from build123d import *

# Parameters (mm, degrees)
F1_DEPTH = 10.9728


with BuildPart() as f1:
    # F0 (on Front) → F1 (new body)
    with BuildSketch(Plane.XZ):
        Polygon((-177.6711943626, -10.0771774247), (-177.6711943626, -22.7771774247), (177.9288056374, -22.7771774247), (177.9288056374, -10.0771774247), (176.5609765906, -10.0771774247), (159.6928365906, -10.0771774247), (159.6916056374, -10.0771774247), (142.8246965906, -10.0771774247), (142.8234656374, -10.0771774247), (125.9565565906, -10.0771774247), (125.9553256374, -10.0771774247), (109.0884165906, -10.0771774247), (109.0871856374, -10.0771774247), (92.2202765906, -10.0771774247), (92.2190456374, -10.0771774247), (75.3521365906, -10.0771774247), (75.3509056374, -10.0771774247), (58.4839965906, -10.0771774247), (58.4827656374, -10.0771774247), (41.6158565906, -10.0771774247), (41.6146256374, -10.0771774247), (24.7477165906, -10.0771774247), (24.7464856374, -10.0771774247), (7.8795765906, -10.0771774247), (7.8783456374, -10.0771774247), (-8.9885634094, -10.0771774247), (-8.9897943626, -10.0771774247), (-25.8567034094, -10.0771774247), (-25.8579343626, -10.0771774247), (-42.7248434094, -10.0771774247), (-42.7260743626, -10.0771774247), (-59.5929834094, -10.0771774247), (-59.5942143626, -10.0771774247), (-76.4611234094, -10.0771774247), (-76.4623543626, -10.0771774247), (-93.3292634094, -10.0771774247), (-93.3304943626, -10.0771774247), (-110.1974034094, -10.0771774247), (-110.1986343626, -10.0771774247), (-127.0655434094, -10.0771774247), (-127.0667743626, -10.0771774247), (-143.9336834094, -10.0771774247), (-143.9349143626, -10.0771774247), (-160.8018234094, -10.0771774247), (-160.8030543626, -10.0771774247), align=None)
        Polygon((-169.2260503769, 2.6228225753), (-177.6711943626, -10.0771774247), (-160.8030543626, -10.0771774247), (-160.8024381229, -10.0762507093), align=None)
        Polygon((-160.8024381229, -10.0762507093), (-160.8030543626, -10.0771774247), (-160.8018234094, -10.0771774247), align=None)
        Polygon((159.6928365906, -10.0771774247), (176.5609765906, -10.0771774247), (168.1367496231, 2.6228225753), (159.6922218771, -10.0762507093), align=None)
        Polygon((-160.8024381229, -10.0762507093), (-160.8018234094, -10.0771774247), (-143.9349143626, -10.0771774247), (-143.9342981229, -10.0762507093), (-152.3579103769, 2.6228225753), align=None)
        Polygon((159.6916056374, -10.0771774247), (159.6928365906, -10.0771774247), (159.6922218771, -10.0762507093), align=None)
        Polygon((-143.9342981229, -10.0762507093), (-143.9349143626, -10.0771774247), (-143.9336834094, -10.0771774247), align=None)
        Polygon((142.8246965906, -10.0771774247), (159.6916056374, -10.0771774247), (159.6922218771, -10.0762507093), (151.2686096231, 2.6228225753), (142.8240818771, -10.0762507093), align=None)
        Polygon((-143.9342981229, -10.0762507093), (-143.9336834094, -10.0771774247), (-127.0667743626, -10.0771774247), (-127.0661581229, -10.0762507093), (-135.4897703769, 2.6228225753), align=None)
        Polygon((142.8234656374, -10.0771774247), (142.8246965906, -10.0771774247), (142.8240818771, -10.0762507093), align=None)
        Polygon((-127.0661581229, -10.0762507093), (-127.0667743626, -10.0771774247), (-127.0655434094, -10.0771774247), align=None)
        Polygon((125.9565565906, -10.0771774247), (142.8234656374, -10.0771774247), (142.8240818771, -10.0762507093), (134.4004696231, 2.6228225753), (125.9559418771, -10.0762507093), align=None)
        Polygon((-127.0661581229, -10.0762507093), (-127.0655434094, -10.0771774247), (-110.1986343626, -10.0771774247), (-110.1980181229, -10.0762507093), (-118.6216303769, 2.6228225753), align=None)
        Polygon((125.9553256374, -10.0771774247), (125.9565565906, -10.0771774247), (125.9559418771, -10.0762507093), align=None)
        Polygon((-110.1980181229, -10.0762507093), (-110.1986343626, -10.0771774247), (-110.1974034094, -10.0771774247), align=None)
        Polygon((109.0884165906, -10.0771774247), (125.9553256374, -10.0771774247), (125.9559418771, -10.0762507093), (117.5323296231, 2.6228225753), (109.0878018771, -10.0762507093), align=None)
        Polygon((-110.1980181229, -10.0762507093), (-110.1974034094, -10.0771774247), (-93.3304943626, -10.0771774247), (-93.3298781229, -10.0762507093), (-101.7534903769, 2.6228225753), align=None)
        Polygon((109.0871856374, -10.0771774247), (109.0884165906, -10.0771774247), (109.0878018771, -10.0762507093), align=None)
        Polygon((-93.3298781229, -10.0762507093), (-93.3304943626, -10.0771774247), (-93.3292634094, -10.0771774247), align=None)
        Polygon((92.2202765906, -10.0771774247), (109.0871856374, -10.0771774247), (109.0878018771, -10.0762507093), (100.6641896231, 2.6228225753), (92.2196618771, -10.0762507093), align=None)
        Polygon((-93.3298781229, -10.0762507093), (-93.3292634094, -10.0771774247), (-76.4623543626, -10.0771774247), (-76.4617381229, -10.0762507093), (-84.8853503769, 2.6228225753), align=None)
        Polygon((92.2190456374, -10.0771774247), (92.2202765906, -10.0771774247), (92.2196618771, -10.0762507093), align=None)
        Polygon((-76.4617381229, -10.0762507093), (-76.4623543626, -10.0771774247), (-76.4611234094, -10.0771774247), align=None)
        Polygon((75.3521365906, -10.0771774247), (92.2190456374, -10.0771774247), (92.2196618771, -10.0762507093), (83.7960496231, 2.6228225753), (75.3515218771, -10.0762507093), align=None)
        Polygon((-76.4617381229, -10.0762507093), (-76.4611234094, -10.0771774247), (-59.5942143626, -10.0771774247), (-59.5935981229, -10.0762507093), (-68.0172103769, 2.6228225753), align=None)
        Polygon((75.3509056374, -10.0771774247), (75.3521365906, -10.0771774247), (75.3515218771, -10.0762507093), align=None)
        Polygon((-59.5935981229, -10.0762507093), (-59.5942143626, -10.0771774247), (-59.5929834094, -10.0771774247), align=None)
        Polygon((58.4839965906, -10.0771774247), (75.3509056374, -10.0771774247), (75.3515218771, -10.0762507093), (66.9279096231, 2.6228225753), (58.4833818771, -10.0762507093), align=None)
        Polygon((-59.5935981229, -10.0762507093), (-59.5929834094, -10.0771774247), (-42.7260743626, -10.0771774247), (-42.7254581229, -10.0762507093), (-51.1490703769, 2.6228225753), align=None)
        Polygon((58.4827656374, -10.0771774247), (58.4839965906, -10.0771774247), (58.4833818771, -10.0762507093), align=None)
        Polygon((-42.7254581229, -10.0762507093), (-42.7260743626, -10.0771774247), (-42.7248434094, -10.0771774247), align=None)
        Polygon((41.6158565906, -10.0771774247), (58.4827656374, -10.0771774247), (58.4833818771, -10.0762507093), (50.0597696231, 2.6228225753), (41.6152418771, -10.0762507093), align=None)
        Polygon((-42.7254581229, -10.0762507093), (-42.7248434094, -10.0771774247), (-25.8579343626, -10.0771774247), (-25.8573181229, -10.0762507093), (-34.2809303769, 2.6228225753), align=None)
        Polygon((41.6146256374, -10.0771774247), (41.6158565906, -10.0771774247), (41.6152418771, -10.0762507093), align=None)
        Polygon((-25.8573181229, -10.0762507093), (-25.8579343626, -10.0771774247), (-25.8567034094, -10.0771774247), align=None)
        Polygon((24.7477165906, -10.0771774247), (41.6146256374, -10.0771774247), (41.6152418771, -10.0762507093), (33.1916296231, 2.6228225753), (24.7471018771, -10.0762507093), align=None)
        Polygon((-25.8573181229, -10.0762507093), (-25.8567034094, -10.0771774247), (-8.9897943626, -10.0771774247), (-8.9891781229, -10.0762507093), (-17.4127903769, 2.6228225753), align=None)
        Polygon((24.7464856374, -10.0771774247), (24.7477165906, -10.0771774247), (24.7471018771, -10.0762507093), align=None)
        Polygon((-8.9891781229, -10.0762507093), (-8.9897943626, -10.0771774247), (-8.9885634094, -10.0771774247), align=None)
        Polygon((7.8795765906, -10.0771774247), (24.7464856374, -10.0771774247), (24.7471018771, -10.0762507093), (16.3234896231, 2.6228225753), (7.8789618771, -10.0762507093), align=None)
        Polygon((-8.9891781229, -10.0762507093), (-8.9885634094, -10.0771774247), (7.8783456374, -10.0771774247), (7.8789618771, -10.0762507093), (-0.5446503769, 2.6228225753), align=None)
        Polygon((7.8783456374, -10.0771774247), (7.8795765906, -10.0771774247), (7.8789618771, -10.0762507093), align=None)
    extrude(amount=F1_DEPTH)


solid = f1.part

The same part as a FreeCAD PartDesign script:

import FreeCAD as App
import Part
import Sketcher

V = App.Vector
Q = App.Units.Quantity

doc = App.newDocument("Part")
body = doc.addObject("PartDesign::Body", "Body")

# Sketch on XZ plane
sketch1 = doc.addObject("Sketcher::SketchObject", "Sketch")
body.addObject(sketch1)
sketch1.AttachmentSupport = (doc.XZ_Plane, [""])
sketch1.MapMode = "FlatFace"
sketch1.addGeometry(Part.LineSegment(V(16.3, 2.6, 0), V(7.9, -10.1, 0)), False)
sketch1.addGeometry(Part.LineSegment(V(7.9, -10.1, 0), V(-0.5, 2.6, 0)), False)
sketch1.addGeometry(Part.LineSegment(V(-0.5, 2.6, 0), V(-9, -10.1, 0)), False)
sketch1.addGeometry(Part.LineSegment(V(-9, -10.1, 0), V(-17.4, 2.6, 0)), False)
sketch1.addGeometry(Part.LineSegment(V(-17.4, 2.6, 0), V(-25.9, -10.1, 0)), False)
sketch1.addGeometry(Part.LineSegment(V(-25.9, -10.1, 0), V(-34.3, 2.6, 0)), False)
sketch1.addGeometry(Part.LineSegment(V(-34.3, 2.6, 0), V(-42.7, -10.1, 0)), False)
sketch1.addGeometry(Part.LineSegment(V(-42.7, -10.1, 0), V(-51.1, 2.6, 0)), False)
sketch1.addGeometry(Part.LineSegment(V(-51.1, 2.6, 0), V(-59.6, -10.1, 0)), False)
sketch1.addGeometry(Part.LineSegment(V(-59.6, -10.1, 0), V(-68, 2.6, 0)), False)
sketch1.addGeometry(Part.LineSegment(V(-68, 2.6, 0), V(-76.5, -10.1, 0)), False)
sketch1.addGeometry(Part.LineSegment(V(-76.5, -10.1, 0), V(-84.9, 2.6, 0)), False)
sketch1.addGeometry(Part.LineSegment(V(-84.9, 2.6, 0), V(-93.3, -10.1, 0)), False)
sketch1.addGeometry(Part.LineSegment(V(-93.3, -10.1, 0), V(-101.8, 2.6, 0)), False)
sketch1.addGeometry(Part.LineSegment(V(-101.8, 2.6, 0), V(-110.2, -10.1, 0)), False)
sketch1.addGeometry(Part.LineSegment(V(-110.2, -10.1, 0), V(-118.6, 2.6, 0)), False)
sketch1.addGeometry(Part.LineSegment(V(-118.6, 2.6, 0), V(-127.1, -10.1, 0)), False)
sketch1.addGeometry(Part.LineSegment(V(-127.1, -10.1, 0), V(-135.5, 2.6, 0)), False)
sketch1.addGeometry(Part.LineSegment(V(-135.5, 2.6, 0), V(-143.9, -10.1, 0)), False)
sketch1.addGeometry(Part.LineSegment(V(-143.9, -10.1, 0), V(-152.4, 2.6, 0)), False)
sketch1.addGeometry(Part.LineSegment(V(-152.4, 2.6, 0), V(-160.8, -10.1, 0)), False)
sketch1.addGeometry(Part.LineSegment(V(-160.8, -10.1, 0), V(-169.2, 2.6, 0)), False)
sketch1.addGeometry(Part.LineSegment(V(-169.2, 2.6, 0), V(-177.7, -10.1, 0)), False)
sketch1.addGeometry(Part.LineSegment(V(-177.7, -10.1, 0), V(-177.7, -22.8, 0)), False)
sketch1.addGeometry(Part.LineSegment(V(-177.7, -22.8, 0), V(177.9, -22.8, 0)), False)
sketch1.addGeometry(Part.LineSegment(V(177.9, -22.8, 0), V(177.9, -10.1, 0)), False)
sketch1.addGeometry(Part.LineSegment(V(177.9, -10.1, 0), V(176.6, -10.1, 0)), False)
sketch1.addGeometry(Part.LineSegment(V(176.6, -10.1, 0), V(168.1, 2.6, 0)), False)
sketch1.addGeometry(Part.LineSegment(V(168.1, 2.6, 0), V(159.7, -10.1, 0)), False)
sketch1.addGeometry(Part.LineSegment(V(159.7, -10.1, 0), V(151.3, 2.6, 0)), False)
sketch1.addGeometry(Part.LineSegment(V(151.3, 2.6, 0), V(142.8, -10.1, 0)), False)
sketch1.addGeometry(Part.LineSegment(V(142.8, -10.1, 0), V(134.4, 2.6, 0)), False)
sketch1.addGeometry(Part.LineSegment(V(134.4, 2.6, 0), V(126, -10.1, 0)), False)
sketch1.addGeometry(Part.LineSegment(V(126, -10.1, 0), V(117.5, 2.6, 0)), False)
sketch1.addGeometry(Part.LineSegment(V(117.5, 2.6, 0), V(109.1, -10.1, 0)), False)
sketch1.addGeometry(Part.LineSegment(V(109.1, -10.1, 0), V(100.7, 2.6, 0)), False)
sketch1.addGeometry(Part.LineSegment(V(100.7, 2.6, 0), V(92.2, -10.1, 0)), False)
sketch1.addGeometry(Part.LineSegment(V(92.2, -10.1, 0), V(83.8, 2.6, 0)), False)
sketch1.addGeometry(Part.LineSegment(V(83.8, 2.6, 0), V(75.4, -10.1, 0)), False)
sketch1.addGeometry(Part.LineSegment(V(75.4, -10.1, 0), V(66.9, 2.6, 0)), False)
sketch1.addGeometry(Part.LineSegment(V(66.9, 2.6, 0), V(58.5, -10.1, 0)), False)
sketch1.addGeometry(Part.LineSegment(V(58.5, -10.1, 0), V(50.1, 2.6, 0)), False)
sketch1.addGeometry(Part.LineSegment(V(50.1, 2.6, 0), V(41.6, -10.1, 0)), False)
sketch1.addGeometry(Part.LineSegment(V(41.6, -10.1, 0), V(33.2, 2.6, 0)), False)
sketch1.addGeometry(Part.LineSegment(V(33.2, 2.6, 0), V(24.7, -10.1, 0)), False)
sketch1.addGeometry(Part.LineSegment(V(24.7, -10.1, 0), V(16.3, 2.6, 0)), False)
sketch1.addConstraint(Sketcher.Constraint("Coincident", 0, 2, 1, 1))
sketch1.addConstraint(Sketcher.Constraint("Coincident", 1, 2, 2, 1))
sketch1.addConstraint(Sketcher.Constraint("Coincident", 2, 2, 3, 1))
sketch1.addConstraint(Sketcher.Constraint("Coincident", 3, 2, 4, 1))
sketch1.addConstraint(Sketcher.Constraint("Coincident", 4, 2, 5, 1))
sketch1.addConstraint(Sketcher.Constraint("Coincident", 5, 2, 6, 1))
sketch1.addConstraint(Sketcher.Constraint("Coincident", 6, 2, 7, 1))
sketch1.addConstraint(Sketcher.Constraint("Coincident", 7, 2, 8, 1))
sketch1.addConstraint(Sketcher.Constraint("Coincident", 8, 2, 9, 1))
sketch1.addConstraint(Sketcher.Constraint("Coincident", 9, 2, 10, 1))
sketch1.addConstraint(Sketcher.Constraint("Coincident", 10, 2, 11, 1))
sketch1.addConstraint(Sketcher.Constraint("Coincident", 11, 2, 12, 1))
sketch1.addConstraint(Sketcher.Constraint("Coincident", 12, 2, 13, 1))
sketch1.addConstraint(Sketcher.Constraint("Coincident", 13, 2, 14, 1))
sketch1.addConstraint(Sketcher.Constraint("Coincident", 14, 2, 15, 1))
sketch1.addConstraint(Sketcher.Constraint("Coincident", 15, 2, 16, 1))
sketch1.addConstraint(Sketcher.Constraint("Coincident", 16, 2, 17, 1))
sketch1.addConstraint(Sketcher.Constraint("Coincident", 17, 2, 18, 1))
sketch1.addConstraint(Sketcher.Constraint("Coincident", 18, 2, 19, 1))
sketch1.addConstraint(Sketcher.Constraint("Coincident", 19, 2, 20, 1))
sketch1.addConstraint(Sketcher.Constraint("Coincident", 20, 2, 21, 1))
sketch1.addConstraint(Sketcher.Constraint("Coincident", 21, 2, 22, 1))
sketch1.addConstraint(Sketcher.Constraint("Coincident", 22, 2, 23, 1))
sketch1.addConstraint(Sketcher.Constraint("Coincident", 23, 2, 24, 1))
sketch1.addConstraint(Sketcher.Constraint("Coincident", 24, 2, 25, 1))
sketch1.addConstraint(Sketcher.Constraint("Coincident", 25, 2, 26, 1))
sketch1.addConstraint(Sketcher.Constraint("Coincident", 26, 2, 27, 1))
sketch1.addConstraint(Sketcher.Constraint("Coincident", 27, 2, 28, 1))
sketch1.addConstraint(Sketcher.Constraint("Coincident", 28, 2, 29, 1))
sketch1.addConstraint(Sketcher.Constraint("Coincident", 29, 2, 30, 1))
sketch1.addConstraint(Sketcher.Constraint("Coincident", 30, 2, 31, 1))
sketch1.addConstraint(Sketcher.Constraint("Coincident", 31, 2, 32, 1))
sketch1.addConstraint(Sketcher.Constraint("Coincident", 32, 2, 33, 1))
sketch1.addConstraint(Sketcher.Constraint("Coincident", 33, 2, 34, 1))
sketch1.addConstraint(Sketcher.Constraint("Coincident", 34, 2, 35, 1))
sketch1.addConstraint(Sketcher.Constraint("Coincident", 35, 2, 36, 1))
sketch1.addConstraint(Sketcher.Constraint("Coincident", 36, 2, 37, 1))
sketch1.addConstraint(Sketcher.Constraint("Coincident", 37, 2, 38, 1))
sketch1.addConstraint(Sketcher.Constraint("Coincident", 38, 2, 39, 1))
sketch1.addConstraint(Sketcher.Constraint("Coincident", 39, 2, 40, 1))
sketch1.addConstraint(Sketcher.Constraint("Coincident", 40, 2, 41, 1))
sketch1.addConstraint(Sketcher.Constraint("Coincident", 41, 2, 42, 1))
sketch1.addConstraint(Sketcher.Constraint("Coincident", 42, 2, 43, 1))
sketch1.addConstraint(Sketcher.Constraint("Coincident", 43, 2, 44, 1))
sketch1.addConstraint(Sketcher.Constraint("Coincident", 44, 2, 45, 1))
sketch1.addConstraint(Sketcher.Constraint("Coincident", 45, 2, 0, 1))
sketch1.addConstraint(Sketcher.Constraint("Vertical", 23))
sketch1.addConstraint(Sketcher.Constraint("Horizontal", 24))
sketch1.addConstraint(Sketcher.Constraint("Vertical", 25))
sketch1.addConstraint(Sketcher.Constraint("Horizontal", 26))
sketch1.addConstraint(Sketcher.Constraint("Parallel", 0, 2))
sketch1.addConstraint(Sketcher.Constraint("Parallel", 1, 3))
sketch1.addConstraint(Sketcher.Constraint("Parallel", 2, 4))
sketch1.addConstraint(Sketcher.Constraint("Parallel", 3, 5))
sketch1.addConstraint(Sketcher.Constraint("Parallel", 4, 6))
sketch1.addConstraint(Sketcher.Constraint("Parallel", 5, 7))
sketch1.addConstraint(Sketcher.Constraint("Parallel", 6, 8))
sketch1.addConstraint(Sketcher.Constraint("Parallel", 7, 9))
sketch1.addConstraint(Sketcher.Constraint("Parallel", 8, 10))
sketch1.addConstraint(Sketcher.Constraint("Parallel", 9, 11))
sketch1.addConstraint(Sketcher.Constraint("Parallel", 10, 12))
sketch1.addConstraint(Sketcher.Constraint("Parallel", 11, 13))
sketch1.addConstraint(Sketcher.Constraint("Parallel", 12, 14))
sketch1.addConstraint(Sketcher.Constraint("Parallel", 13, 15))
sketch1.addConstraint(Sketcher.Constraint("Parallel", 14, 16))
sketch1.addConstraint(Sketcher.Constraint("Parallel", 15, 17))
sketch1.addConstraint(Sketcher.Constraint("Parallel", 16, 18))
sketch1.addConstraint(Sketcher.Constraint("Parallel", 17, 19))
sketch1.addConstraint(Sketcher.Constraint("Parallel", 18, 20))
sketch1.addConstraint(Sketcher.Constraint("Parallel", 19, 21))
sketch1.addConstraint(Sketcher.Constraint("Parallel", 20, 22))
sketch1.addConstraint(Sketcher.Constraint("Parallel", 21, 27))
sketch1.addConstraint(Sketcher.Constraint("Parallel", 22, 28))
sketch1.addConstraint(Sketcher.Constraint("Parallel", 27, 29))
sketch1.addConstraint(Sketcher.Constraint("Parallel", 28, 30))
sketch1.addConstraint(Sketcher.Constraint("Parallel", 29, 31))
sketch1.addConstraint(Sketcher.Constraint("Parallel", 30, 32))
sketch1.addConstraint(Sketcher.Constraint("Parallel", 31, 33))
sketch1.addConstraint(Sketcher.Constraint("Parallel", 32, 34))
sketch1.addConstraint(Sketcher.Constraint("Parallel", 33, 35))
sketch1.addConstraint(Sketcher.Constraint("Parallel", 34, 36))
sketch1.addConstraint(Sketcher.Constraint("Parallel", 35, 37))
sketch1.addConstraint(Sketcher.Constraint("Parallel", 36, 38))
sketch1.addConstraint(Sketcher.Constraint("Parallel", 37, 39))
sketch1.addConstraint(Sketcher.Constraint("Parallel", 38, 40))
sketch1.addConstraint(Sketcher.Constraint("Parallel", 39, 41))
sketch1.addConstraint(Sketcher.Constraint("Parallel", 40, 42))
sketch1.addConstraint(Sketcher.Constraint("Parallel", 41, 43))
sketch1.addConstraint(Sketcher.Constraint("Parallel", 42, 44))
sketch1.addConstraint(Sketcher.Constraint("Parallel", 43, 45))
sketch1.addConstraint(Sketcher.Constraint("Horizontal", 0, 2, 2, 2))
sketch1.addConstraint(Sketcher.Constraint("Horizontal", 1, 2, 3, 2))
sketch1.addConstraint(Sketcher.Constraint("Horizontal", 2, 2, 4, 2))
sketch1.addConstraint(Sketcher.Constraint("Horizontal", 3, 2, 5, 2))
sketch1.addConstraint(Sketcher.Constraint("Horizontal", 4, 2, 6, 2))
sketch1.addConstraint(Sketcher.Constraint("Horizontal", 5, 2, 7, 2))
sketch1.addConstraint(Sketcher.Constraint("Horizontal", 6, 2, 8, 2))
sketch1.addConstraint(Sketcher.Constraint("Horizontal", 7, 2, 9, 2))
sketch1.addConstraint(Sketcher.Constraint("Horizontal", 8, 2, 10, 2))
sketch1.addConstraint(Sketcher.Constraint("Horizontal", 9, 2, 11, 2))
sketch1.addConstraint(Sketcher.Constraint("Horizontal", 10, 2, 12, 2))
sketch1.addConstraint(Sketcher.Constraint("Horizontal", 11, 2, 13, 2))
sketch1.addConstraint(Sketcher.Constraint("Horizontal", 12, 2, 14, 2))
sketch1.addConstraint(Sketcher.Constraint("Horizontal", 13, 2, 15, 2))
sketch1.addConstraint(Sketcher.Constraint("Horizontal", 14, 2, 16, 2))
sketch1.addConstraint(Sketcher.Constraint("Horizontal", 15, 2, 17, 2))
sketch1.addConstraint(Sketcher.Constraint("Horizontal", 16, 2, 18, 2))
sketch1.addConstraint(Sketcher.Constraint("Horizontal", 17, 2, 19, 2))
sketch1.addConstraint(Sketcher.Constraint("Horizontal", 18, 2, 20, 2))
sketch1.addConstraint(Sketcher.Constraint("Horizontal", 19, 2, 21, 2))
sketch1.addConstraint(Sketcher.Constraint("Horizontal", 22, 2, 25, 2))
sketch1.addConstraint(Sketcher.Constraint("Horizontal", 21, 2, 27, 2))
sketch1.addConstraint(Sketcher.Constraint("Horizontal", 20, 2, 28, 2))
sketch1.addConstraint(Sketcher.Constraint("Horizontal", 27, 2, 29, 2))
sketch1.addConstraint(Sketcher.Constraint("Horizontal", 28, 2, 30, 2))
sketch1.addConstraint(Sketcher.Constraint("Horizontal", 29, 2, 31, 2))
sketch1.addConstraint(Sketcher.Constraint("Horizontal", 30, 2, 32, 2))
sketch1.addConstraint(Sketcher.Constraint("Horizontal", 31, 2, 33, 2))
sketch1.addConstraint(Sketcher.Constraint("Horizontal", 32, 2, 34, 2))
sketch1.addConstraint(Sketcher.Constraint("Horizontal", 33, 2, 35, 2))
sketch1.addConstraint(Sketcher.Constraint("Horizontal", 34, 2, 36, 2))
sketch1.addConstraint(Sketcher.Constraint("Horizontal", 35, 2, 37, 2))
sketch1.addConstraint(Sketcher.Constraint("Horizontal", 36, 2, 38, 2))
sketch1.addConstraint(Sketcher.Constraint("Horizontal", 37, 2, 39, 2))
sketch1.addConstraint(Sketcher.Constraint("Horizontal", 38, 2, 40, 2))
sketch1.addConstraint(Sketcher.Constraint("Horizontal", 39, 2, 41, 2))
sketch1.addConstraint(Sketcher.Constraint("Horizontal", 40, 2, 42, 2))
sketch1.addConstraint(Sketcher.Constraint("Horizontal", 41, 2, 43, 2))
sketch1.addConstraint(Sketcher.Constraint("Horizontal", 42, 2, 44, 2))
sketch1.addConstraint(Sketcher.Constraint("Horizontal", 43, 2, 45, 2))
sketch1.addConstraint(Sketcher.Constraint("DistanceX", 24, 1, 24, 2, Q("14 in")))
sketch1.addConstraint(Sketcher.Constraint("DistanceY", 23, 2, 23, 1, Q("0.5 in")))
sketch1.addConstraint(Sketcher.Constraint("DistanceY", 23, 2, 21, 2, Q("1 in")))
sketch1.addConstraint(Sketcher.Constraint("Distance", 27, Q("0.6 in")))
sketch1.addConstraint(Sketcher.Constraint("DistanceX", 1, 2, 27, 2, Q("6.641 in")))
sketch1.addConstraint(Sketcher.Constraint("DistanceX", 26, 2, 26, 1, Q("1.367829 mm")))
sketch1.addConstraint(Sketcher.Constraint("DistanceX", 8, 2, -1, 1, Q("59.593598 mm")))
sketch1.addConstraint(Sketcher.Constraint("DistanceY", 0, 2, -1, 1, Q("10.076251 mm")))
pad1 = doc.addObject("PartDesign::Pad", "Pad")
body.addObject(pad1)
pad1.Profile = sketch1
pad1.Length = Q("0.432 in")

doc.recompute()
